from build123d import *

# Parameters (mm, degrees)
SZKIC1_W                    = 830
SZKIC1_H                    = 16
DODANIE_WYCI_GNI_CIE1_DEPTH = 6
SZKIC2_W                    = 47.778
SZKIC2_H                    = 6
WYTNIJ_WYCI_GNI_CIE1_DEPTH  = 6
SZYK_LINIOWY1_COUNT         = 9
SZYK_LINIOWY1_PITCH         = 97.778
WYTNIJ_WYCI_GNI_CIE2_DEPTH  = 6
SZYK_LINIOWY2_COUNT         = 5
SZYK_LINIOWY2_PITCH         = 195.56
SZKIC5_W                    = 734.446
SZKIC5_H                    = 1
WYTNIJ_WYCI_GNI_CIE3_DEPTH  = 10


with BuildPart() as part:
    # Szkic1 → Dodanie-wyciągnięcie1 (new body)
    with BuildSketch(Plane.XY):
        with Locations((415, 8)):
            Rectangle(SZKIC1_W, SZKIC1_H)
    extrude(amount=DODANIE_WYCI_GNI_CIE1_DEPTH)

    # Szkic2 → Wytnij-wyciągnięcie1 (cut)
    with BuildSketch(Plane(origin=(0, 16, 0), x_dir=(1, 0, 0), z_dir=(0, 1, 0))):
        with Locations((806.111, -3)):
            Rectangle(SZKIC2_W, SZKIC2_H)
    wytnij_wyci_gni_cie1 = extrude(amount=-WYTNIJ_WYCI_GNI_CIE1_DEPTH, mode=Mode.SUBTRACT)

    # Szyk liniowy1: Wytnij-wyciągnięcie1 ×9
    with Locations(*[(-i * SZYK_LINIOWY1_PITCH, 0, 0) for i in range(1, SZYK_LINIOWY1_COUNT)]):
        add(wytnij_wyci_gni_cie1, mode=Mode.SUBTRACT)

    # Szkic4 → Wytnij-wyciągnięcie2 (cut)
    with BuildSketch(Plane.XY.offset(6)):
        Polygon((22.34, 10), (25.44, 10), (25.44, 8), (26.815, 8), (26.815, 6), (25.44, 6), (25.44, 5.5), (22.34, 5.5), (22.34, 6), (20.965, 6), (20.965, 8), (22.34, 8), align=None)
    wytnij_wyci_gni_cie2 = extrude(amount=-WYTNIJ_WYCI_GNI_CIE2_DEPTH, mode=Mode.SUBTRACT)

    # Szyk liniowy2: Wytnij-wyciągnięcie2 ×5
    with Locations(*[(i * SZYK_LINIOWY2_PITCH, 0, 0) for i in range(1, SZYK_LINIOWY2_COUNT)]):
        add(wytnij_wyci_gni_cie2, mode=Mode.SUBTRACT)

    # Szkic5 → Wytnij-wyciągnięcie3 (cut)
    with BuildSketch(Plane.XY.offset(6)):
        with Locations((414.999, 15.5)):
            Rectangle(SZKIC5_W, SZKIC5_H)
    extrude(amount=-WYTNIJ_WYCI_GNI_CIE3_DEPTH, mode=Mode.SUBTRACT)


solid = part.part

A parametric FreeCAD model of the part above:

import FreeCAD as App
import Part
import Sketcher

V = App.Vector


def add_polygon(sketch, points):
    """Adds a closed chain of lines whose ends are joined by coincident constraints."""
    first, n = sketch.GeometryCount, len(points)
    for a, b in zip(points, points[1:] + points[:1]):
        sketch.addGeometry(Part.LineSegment(App.Vector(*a, 0), App.Vector(*b, 0)), False)
    for i in range(n):
        sketch.addConstraint(Sketcher.Constraint("Coincident", first + i, 2, first + (i + 1) % n, 1))

doc = App.newDocument("Part")
params = doc.addObject("Spreadsheet::Sheet", "Params")
for row, (alias, value) in enumerate([
    ("sketch1_width", "830 mm"),
    ("sketch1_height", "16 mm"),
    ("pad1_length", "6 mm"),
    ("sketch2_height", "6 mm"),
    ("pocket1_length", "6 mm"),
    ("linearpattern_pitch", "97.778 mm"),
    ("sketch3_height", "2 mm"),
    ("sketch3_width", "3.1 mm"),
    ("sketch3_height2", "0.5 mm"),
    ("pocket2_length", "6 mm"),
    ("linearpattern2_pitch", "195.56 mm"),
    ("sketch4_height", "1 mm"),
    ("pocket3_length", "10 mm"),
], start=1):
    params.set(f"A{row}", alias)
    params.set(f"B{row}", "=" + value)
    params.setAlias(f"B{row}", alias)

body = doc.addObject("PartDesign::Body", "Body")

# Sketch on XY plane
sketch1 = body.newObject("Sketcher::SketchObject", "Sketch")
sketch1.AttachmentSupport = (doc.getObject("XY_Plane"), [""])
sketch1.MapMode = "FlatFace"
add_polygon(sketch1, [(0, 16), (0, 0), (830, 0), (830, 16)])  # lines 0-3
sketch1.addConstraint(Sketcher.Constraint("Vertical", 0))
sketch1.addConstraint(Sketcher.Constraint("Horizontal", 1))
sketch1.addConstraint(Sketcher.Constraint("Vertical", 2))
sketch1.addConstraint(Sketcher.Constraint("Horizontal", 3))
sketch1.addConstraint(Sketcher.Constraint("Coincident", 0, 2, -1, 1))
sketch1.addConstraint(Sketcher.Constraint("DistanceX", 1, 1, 1, 2, 830.0))
sketch1.addConstraint(Sketcher.Constraint("DistanceY", 0, 2, 0, 1, 16.0))
sketch1.setExpression("Constraints[9]", "Params.sketch1_width")
sketch1.setExpression("Constraints[10]", "Params.sketch1_height")
pad1 = body.newObject("PartDesign::Pad", "Pad")
pad1.Profile = sketch1
pad1.setExpression("Length", "Params.pad1_length")

# Sketch on XZ plane
sketch2 = body.newObject("Sketcher::SketchObject", "Sketch001")
sketch2.AttachmentSupport = (doc.getObject("XZ_Plane"), [""])
sketch2.MapMode = "FlatFace"
sketch2.AttachmentOffset = App.Placement(V(0, 0, -16), App.Rotation())
add_polygon(sketch2, [(782, 0), (782, 6), (830, 6), (830, 0)])  # lines 0-3
sketch2.addConstraint(Sketcher.Constraint("Vertical", 0))
sketch2.addConstraint(Sketcher.Constraint("Horizontal", 1))
sketch2.addConstraint(Sketcher.Constraint("Vertical", 2))
sketch2.addConstraint(Sketcher.Constraint("Horizontal", 3))
sketch2.addConstraint(Sketcher.Constraint("PointOnObject", 2, 2, -1))
sketch2.addConstraint(Sketcher.Constraint("DistanceY", 0, 1, 0, 2, 6.0))
sketch2.addConstraint(Sketcher.Constraint("DistanceX", -1, 1, 1, 2, 830.0))
sketch2.addConstraint(Sketcher.Constraint("DistanceX", 1, 1, 1, 2, 47.778))
sketch2.setExpression("Constraints[9]", "Params.sketch2_height")
pocket1 = body.newObject("PartDesign::Pocket", "Pocket")
pocket1.Profile = sketch2
pocket1.setExpression("Length", "Params.pocket1_length")
pocket1.Reversed = True
doc.recompute()

linearpattern = body.newObject("PartDesign::LinearPattern", "LinearPattern")
linearpattern.Originals = [pocket1]
linearpattern.Direction = (doc.getObject("X_Axis"), [""])
linearpattern.Mode = "offset"
linearpattern.setExpression("Offset", "Params.linearpattern_pitch")
linearpattern.Occurrences = 9
linearpattern.Reversed = True
body.Tip = linearpattern

# Sketch on XY plane
sketch3 = body.newObject("Sketcher::SketchObject", "Sketch002")
sketch3.AttachmentSupport = (doc.getObject("XY_Plane"), [""])
sketch3.MapMode = "FlatFace"
sketch3.AttachmentOffset = App.Placement(V(0, 0, 6), App.Rotation())
add_polygon(sketch3, [(25.4, 10), (22.3, 10), (22.3, 8), (21, 8), (21, 6), (22.3, 6), (22.3, 5.5), (25.4, 5.5), (25.4, 6), (26.8, 6), (26.8, 8), (25.4, 8)])  # lines 0-11
sketch3.addConstraint(Sketcher.Constraint("Horizontal", 0))
sketch3.addConstraint(Sketcher.Constraint("Vertical", 1))
sketch3.addConstraint(Sketcher.Constraint("Horizontal", 2))
sketch3.addConstraint(Sketcher.Constraint("Vertical", 3))
sketch3.addConstraint(Sketcher.Constraint("Horizontal", 4))
sketch3.addConstraint(Sketcher.Constraint("Vertical", 5))
sketch3.addConstraint(Sketcher.Constraint("Horizontal", 6))
sketch3.addConstraint(Sketcher.Constraint("Vertical", 7))
sketch3.addConstraint(Sketcher.Constraint("Horizontal", 8))
sketch3.addConstraint(Sketcher.Constraint("Vertical", 9))
sketch3.addConstraint(Sketcher.Constraint("Horizontal", 10))
sketch3.addConstraint(Sketcher.Constraint("Vertical", 11))
sketch3.addConstraint(Sketcher.Constraint("Horizontal", 4, 2, 7, 2))
sketch3.addConstraint(Sketcher.Constraint("Horizontal", 2, 2, 9, 2))
sketch3.addConstraint(Sketcher.Constraint("Vertical", 1, 2, 4, 2))
sketch3.addConstraint(Sketcher.Constraint("Vertical", 7, 2, 10, 2))
sketch3.addConstraint(Sketcher.Constraint("Equal", 4, 8))
sketch3.addConstraint(Sketcher.Constraint("Equal", 1, 3))
sketch3.addConstraint(Sketcher.Constraint("DistanceY", 1, 2, 1, 1, 2.0))
sketch3.addConstraint(Sketcher.Constraint("DistanceX", 0, 2, 0, 1, 3.1))
sketch3.addConstraint(Sketcher.Constraint("DistanceY", 5, 2, 5, 1, 0.5))
sketch3.addConstraint(Sketcher.Constraint("DistanceY", -1, 1, 0, 2, 10.0))
sketch3.addConstraint(Sketcher.Constraint("DistanceX", 2, 2, 2, 1, 1.375))
sketch3.addConstraint(Sketcher.Constraint("DistanceX", -1, 1, 0, 2, 22.34))
sketch3.setExpression("Constraints[30]", "Params.sketch3_height")
sketch3.setExpression("Constraints[31]", "Params.sketch3_width")
sketch3.setExpression("Constraints[32]", "Params.sketch3_height2")
pocket2 = body.newObject("PartDesign::Pocket", "Pocket001")
pocket2.Profile = sketch3
pocket2.setExpression("Length", "Params.pocket2_length")
doc.recompute()

linearpattern2 = body.newObject("PartDesign::LinearPattern", "LinearPattern001")
linearpattern2.Originals = [pocket2]
linearpattern2.Direction = (doc.getObject("X_Axis"), [""])
linearpattern2.Mode = "offset"
linearpattern2.setExpression("Offset", "Params.linearpattern2_pitch")
linearpattern2.Occurrences = 5
body.Tip = linearpattern2

# Sketch on XY plane
sketch4 = body.newObject("Sketcher::SketchObject", "Sketch003")
sketch4.AttachmentSupport = (doc.getObject("XY_Plane"), [""])
sketch4.MapMode = "FlatFace"
sketch4.AttachmentOffset = App.Placement(V(0, 0, 6), App.Rotation())
add_polygon(sketch4, [(47.8, 16), (47.8, 15), (782.2, 15), (782.2, 16)])  # lines 0-3
sketch4.addConstraint(Sketcher.Constraint("Vertical", 0))
sketch4.addConstraint(Sketcher.Constraint("Horizontal", 1))
sketch4.addConstraint(Sketcher.Constraint("Vertical", 2))
sketch4.addConstraint(Sketcher.Constraint("Horizontal", 3))
sketch4.addConstraint(Sketcher.Constraint("DistanceY", 0, 2, 0, 1, 1.0))
sketch4.addConstraint(Sketcher.Constraint("DistanceY", -1, 1, 0, 2, 15.0))
sketch4.addConstraint(Sketcher.Constraint("DistanceX", 1, 1, 1, 2, 734.446))
sketch4.addConstraint(Sketcher.Constraint("DistanceX", -1, 1, 0, 2, 47.776))
sketch4.setExpression("Constraints[8]", "Params.sketch4_height")
pocket3 = body.newObject("PartDesign::Pocket", "Pocket002")
pocket3.Profile = sketch4
pocket3.setExpression("Length", "Params.pocket3_length")

doc.recompute()
